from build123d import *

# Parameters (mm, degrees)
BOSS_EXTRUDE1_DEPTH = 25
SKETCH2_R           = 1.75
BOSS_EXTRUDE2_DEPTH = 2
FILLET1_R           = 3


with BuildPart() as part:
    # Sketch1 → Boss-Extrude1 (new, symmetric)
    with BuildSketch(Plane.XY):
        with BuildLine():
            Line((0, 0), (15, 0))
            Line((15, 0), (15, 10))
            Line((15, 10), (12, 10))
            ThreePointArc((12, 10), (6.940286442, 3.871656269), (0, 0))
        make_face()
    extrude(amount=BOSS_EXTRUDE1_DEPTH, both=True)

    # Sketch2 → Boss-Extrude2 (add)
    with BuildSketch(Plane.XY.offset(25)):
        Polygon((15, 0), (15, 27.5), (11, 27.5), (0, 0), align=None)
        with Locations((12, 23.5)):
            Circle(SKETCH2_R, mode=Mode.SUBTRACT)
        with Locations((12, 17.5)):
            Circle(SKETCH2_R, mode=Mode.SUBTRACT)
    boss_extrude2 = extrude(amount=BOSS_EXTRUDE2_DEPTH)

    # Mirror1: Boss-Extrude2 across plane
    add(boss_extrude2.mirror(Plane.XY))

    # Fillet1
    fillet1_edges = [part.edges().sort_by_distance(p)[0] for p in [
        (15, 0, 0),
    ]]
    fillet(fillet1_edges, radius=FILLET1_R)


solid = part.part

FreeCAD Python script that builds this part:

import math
import FreeCAD as App
import Part
import Sketcher

V = App.Vector
Q = App.Units.Quantity


def edges_at(feature, points):
    """Names of the edges that pass closest to the given points."""
    edges = feature.Shape.Edges
    near = lambda p: min(range(len(edges)), key=lambda i: edges[i].distToShape(Part.Vertex(*p))[0])
    return sorted({f"Edge{near(p) + 1}" for p in points})

doc = App.newDocument("Part")
body = doc.addObject("PartDesign::Body", "Body")

sketch1 = body.newObject("Sketcher::SketchObject", "Sketch")
sketch1.AttachmentSupport = (doc.getObject("XY_Plane"), [""])
sketch1.MapMode = "FlatFace"
sketch1.addGeometry([
    Part.LineSegment(V(0, 0, 0), V(15, 0, 0)),
    Part.LineSegment(V(15, 0, 0), V(15, 10, 0)),
    Part.LineSegment(V(15, 10, 0), V(12, 10, 0)),
    Part.ArcOfCircle(Part.Circle(V(-6.8, 20.4, 0), V(0, 0, 1), 21.5), math.radians(-71), math.radians(-29)),
], False)
sketch1.addConstraint([
    Sketcher.Constraint("Coincident", 0, 2, 1, 1),
    Sketcher.Constraint("Coincident", 1, 2, 2, 1),
    Sketcher.Constraint("Coincident", 2, 2, 3, 2),
    Sketcher.Constraint("Coincident", 3, 1, 0, 1),
    Sketcher.Constraint("Horizontal", 0),
    Sketcher.Constraint("Vertical", 1),
    Sketcher.Constraint("Horizontal", 2),
    Sketcher.Constraint("Coincident", 3, 1, -1, 1),
    Sketcher.Constraint("Radius", 3, Q("21.5 mm")),
    Sketcher.Constraint("DistanceX", 0, 1, 0, 2, Q("15 mm")),
    Sketcher.Constraint("DistanceX", 2, 2, 2, 1, Q("3 mm")),
    Sketcher.Constraint("DistanceY", 1, 1, 1, 2, Q("10 mm")),
])
pad1 = body.newObject("PartDesign::Pad", "Pad")
pad1.Profile = sketch1
pad1.Length = 50
pad1.Midplane = True

sketch2 = body.newObject("Sketcher::SketchObject", "Sketch001")
sketch2.AttachmentSupport = (doc.getObject("XY_Plane"), [""])
sketch2.MapMode = "FlatFace"
sketch2.AttachmentOffset = App.Placement(V(0, 0, 25), App.Rotation())
sketch2.addGeometry([
    Part.LineSegment(V(15, 0, 0), V(15, 27.5, 0)),
    Part.LineSegment(V(15, 27.5, 0), V(11, 27.5, 0)),
    Part.LineSegment(V(11, 27.5, 0), V(0, 0, 0)),
    Part.LineSegment(V(0, 0, 0), V(15, 0, 0)),
    Part.Circle(V(12, 17.5, 0), V(0, 0, 1), 1.8),
    Part.Circle(V(12, 23.5, 0), V(0, 0, 1), 1.8),
], False)
sketch2.addConstraint([
    Sketcher.Constraint("Coincident", 0, 2, 1, 1),
    Sketcher.Constraint("Coincident", 1, 2, 2, 1),
    Sketcher.Constraint("Coincident", 2, 2, 3, 1),
    Sketcher.Constraint("Coincident", 3, 2, 0, 1),
    Sketcher.Constraint("Vertical", 0),
    Sketcher.Constraint("Horizontal", 1),
    Sketcher.Constraint("Horizontal", 3),
    Sketcher.Constraint("Coincident", 2, 2, -1, 1),
    Sketcher.Constraint("Equal", 4, 5),
    Sketcher.Constraint("Vertical", 4, 3, 5, 3),
    Sketcher.Constraint("Diameter", 4, Q("3.5 mm")),
    Sketcher.Constraint("DistanceX", 1, 2, 1, 1, Q("4 mm")),
    Sketcher.Constraint("DistanceX", 3, 1, 3, 2, Q("15 mm")),
    Sketcher.Constraint("DistanceY", 0, 1, 0, 2, Q("27.5 mm")),
    Sketcher.Constraint("DistanceX", -1, 1, 4, 3, Q("12 mm")),
    Sketcher.Constraint("DistanceY", 4, 3, 5, 3, Q("6 mm")),
    Sketcher.Constraint("DistanceY", 5, 3, 0, 2, Q("4 mm")),
])
pad2 = body.newObject("PartDesign::Pad", "Pad001")
pad2.Profile = sketch2
pad2.Length = 2
doc.recompute()

mirrored = body.newObject("PartDesign::Mirrored", "Mirrored")
mirrored.Originals = [pad2]
mirrored.MirrorPlane = (doc.getObject("XY_Plane"), [""])
body.Tip = mirrored
doc.recompute()

fillet = body.newObject("PartDesign::Fillet", "Fillet")
fillet.Base = (mirrored, edges_at(mirrored, [(15, 0, 0)]))
fillet.Radius = 3

doc.recompute()
